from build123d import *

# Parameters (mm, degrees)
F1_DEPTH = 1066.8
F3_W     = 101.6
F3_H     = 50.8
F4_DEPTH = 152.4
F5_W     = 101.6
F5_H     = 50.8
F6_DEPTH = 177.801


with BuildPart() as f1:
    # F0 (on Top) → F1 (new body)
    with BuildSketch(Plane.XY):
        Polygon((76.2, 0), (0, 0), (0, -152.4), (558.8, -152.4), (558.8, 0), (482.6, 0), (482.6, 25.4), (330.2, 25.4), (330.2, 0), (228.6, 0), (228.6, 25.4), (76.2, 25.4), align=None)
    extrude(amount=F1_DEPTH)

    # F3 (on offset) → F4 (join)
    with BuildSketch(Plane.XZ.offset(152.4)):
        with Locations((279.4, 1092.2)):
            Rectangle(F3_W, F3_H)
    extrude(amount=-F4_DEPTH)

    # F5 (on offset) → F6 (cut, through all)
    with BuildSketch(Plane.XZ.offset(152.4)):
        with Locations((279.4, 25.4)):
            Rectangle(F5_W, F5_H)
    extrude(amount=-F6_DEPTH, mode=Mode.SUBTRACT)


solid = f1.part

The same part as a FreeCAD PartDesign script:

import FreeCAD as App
import Part
import Sketcher
Q = App.Units.Quantity

doc = App.newDocument("Part")
body = doc.addObject("PartDesign::Body", "Body")

# Sketch on XY plane
sketch1 = body.newObject("Sketcher::SketchObject", "Sketch")
sketch1.AttachmentSupport = (doc.getObject("XY_Plane"), [""])
sketch1.MapMode = "FlatFace"
sketch1.addGeometry(Part.LineSegment(App.Vector(76, 0, 0), App.Vector(0, 0, 0)), False)
sketch1.addGeometry(Part.LineSegment(App.Vector(0, 0, 0), App.Vector(0, -152, 0)), False)
sketch1.addGeometry(Part.LineSegment(App.Vector(0, -152, 0), App.Vector(559, -152, 0)), False)
sketch1.addGeometry(Part.LineSegment(App.Vector(559, -152, 0), App.Vector(559, 0, 0)), False)
sketch1.addGeometry(Part.LineSegment(App.Vector(559, 0, 0), App.Vector(483, 0, 0)), False)
sketch1.addGeometry(Part.LineSegment(App.Vector(483, 0, 0), App.Vector(483, 25, 0)), False)
sketch1.addGeometry(Part.LineSegment(App.Vector(483, 25, 0), App.Vector(330, 25, 0)), False)
sketch1.addGeometry(Part.LineSegment(App.Vector(330, 25, 0), App.Vector(330, 0, 0)), False)
sketch1.addGeometry(Part.LineSegment(App.Vector(330, 0, 0), App.Vector(229, 0, 0)), False)
sketch1.addGeometry(Part.LineSegment(App.Vector(229, 0, 0), App.Vector(229, 25, 0)), False)
sketch1.addGeometry(Part.LineSegment(App.Vector(229, 25, 0), App.Vector(76, 25, 0)), False)
sketch1.addGeometry(Part.LineSegment(App.Vector(76, 25, 0), App.Vector(76, 0, 0)), False)
sketch1.addConstraint(Sketcher.Constraint("Coincident", 0, 2, 1, 1))
sketch1.addConstraint(Sketcher.Constraint("Coincident", 1, 2, 2, 1))
sketch1.addConstraint(Sketcher.Constraint("Coincident", 2, 2, 3, 1))
sketch1.addConstraint(Sketcher.Constraint("Coincident", 3, 2, 4, 1))
sketch1.addConstraint(Sketcher.Constraint("Coincident", 4, 2, 5, 1))
sketch1.addConstraint(Sketcher.Constraint("Coincident", 5, 2, 6, 1))
sketch1.addConstraint(Sketcher.Constraint("Coincident", 6, 2, 7, 1))
sketch1.addConstraint(Sketcher.Constraint("Coincident", 7, 2, 8, 1))
sketch1.addConstraint(Sketcher.Constraint("Coincident", 8, 2, 9, 1))
sketch1.addConstraint(Sketcher.Constraint("Coincident", 9, 2, 10, 1))
sketch1.addConstraint(Sketcher.Constraint("Coincident", 10, 2, 11, 1))
sketch1.addConstraint(Sketcher.Constraint("Coincident", 11, 2, 0, 1))
sketch1.addConstraint(Sketcher.Constraint("Horizontal", 0))
sketch1.addConstraint(Sketcher.Constraint("Vertical", 1))
sketch1.addConstraint(Sketcher.Constraint("Horizontal", 2))
sketch1.addConstraint(Sketcher.Constraint("Vertical", 3))
sketch1.addConstraint(Sketcher.Constraint("Horizontal", 4))
sketch1.addConstraint(Sketcher.Constraint("Vertical", 5))
sketch1.addConstraint(Sketcher.Constraint("Horizontal", 6))
sketch1.addConstraint(Sketcher.Constraint("Vertical", 7))
sketch1.addConstraint(Sketcher.Constraint("Horizontal", 8))
sketch1.addConstraint(Sketcher.Constraint("Vertical", 9))
sketch1.addConstraint(Sketcher.Constraint("Horizontal", 10))
sketch1.addConstraint(Sketcher.Constraint("Vertical", 11))
sketch1.addConstraint(Sketcher.Constraint("Coincident", 0, 2, -1, 1))
sketch1.addConstraint(Sketcher.Constraint("PointOnObject", 3, 2, -1))
sketch1.addConstraint(Sketcher.Constraint("PointOnObject", 7, 2, -1))
sketch1.addConstraint(Sketcher.Constraint("Horizontal", 6, 2, 9, 2))
sketch1.addConstraint(Sketcher.Constraint("Equal", 0, 4))
sketch1.addConstraint(Sketcher.Constraint("Equal", 6, 10))
sketch1.addConstraint(Sketcher.Constraint("Equal", 10, 1))
sketch1.addConstraint(Sketcher.Constraint("DistanceX", 0, 2, 0, 1, Q("3 in")))
sketch1.addConstraint(Sketcher.Constraint("DistanceX", 2, 1, 2, 2, Q("22 in")))
sketch1.addConstraint(Sketcher.Constraint("DistanceX", 6, 2, 6, 1, Q("6 in")))
sketch1.addConstraint(Sketcher.Constraint("DistanceY", 5, 1, 5, 2, Q("1 in")))
pad1 = body.newObject("PartDesign::Pad", "Pad")
pad1.Profile = sketch1
pad1.Length = Q("42 in")

# Sketch on XZ plane
sketch2 = body.newObject("Sketcher::SketchObject", "Sketch001")
sketch2.AttachmentSupport = (doc.getObject("XZ_Plane"), [""])
sketch2.MapMode = "FlatFace"
sketch2.AttachmentOffset = App.Placement(App.Vector(0, 0, 6 * 25.4), App.Rotation())
sketch2.addGeometry(Part.LineSegment(App.Vector(229, 1118, 0), App.Vector(229, 1067, 0)), False)
sketch2.addGeometry(Part.LineSegment(App.Vector(229, 1067, 0), App.Vector(330, 1067, 0)), False)
sketch2.addGeometry(Part.LineSegment(App.Vector(330, 1067, 0), App.Vector(330, 1118, 0)), False)
sketch2.addGeometry(Part.LineSegment(App.Vector(330, 1118, 0), App.Vector(229, 1118, 0)), False)
sketch2.addConstraint(Sketcher.Constraint("Coincident", 0, 2, 1, 1))
sketch2.addConstraint(Sketcher.Constraint("Coincident", 1, 2, 2, 1))
sketch2.addConstraint(Sketcher.Constraint("Coincident", 2, 2, 3, 1))
sketch2.addConstraint(Sketcher.Constraint("Coincident", 3, 2, 0, 1))
sketch2.addConstraint(Sketcher.Constraint("Vertical", 0))
sketch2.addConstraint(Sketcher.Constraint("Horizontal", 1))
sketch2.addConstraint(Sketcher.Constraint("Vertical", 2))
sketch2.addConstraint(Sketcher.Constraint("Horizontal", 3))
sketch2.addConstraint(Sketcher.Constraint("DistanceX", 1, 1, 1, 2, Q("4 in")))
sketch2.addConstraint(Sketcher.Constraint("DistanceY", 0, 2, 0, 1, Q("2 in")))
sketch2.addConstraint(Sketcher.Constraint("DistanceX", -1, 1, 0, 2, Q("9 in")))
sketch2.addConstraint(Sketcher.Constraint("DistanceY", -1, 1, 0, 2, Q("42 in")))
pad2 = body.newObject("PartDesign::Pad", "Pad001")
pad2.Profile = sketch2
pad2.Length = Q("6 in")
pad2.Reversed = True

# Sketch on XZ plane
sketch3 = body.newObject("Sketcher::SketchObject", "Sketch002")
sketch3.AttachmentSupport = (doc.getObject("XZ_Plane"), [""])
sketch3.MapMode = "FlatFace"
sketch3.AttachmentOffset = App.Placement(App.Vector(0, 0, 6 * 25.4), App.Rotation())
sketch3.addGeometry(Part.LineSegment(App.Vector(229, 51, 0), App.Vector(229, 0, 0)), False)
sketch3.addGeometry(Part.LineSegment(App.Vector(229, 0, 0), App.Vector(330, 0, 0)), False)
sketch3.addGeometry(Part.LineSegment(App.Vector(330, 0, 0), App.Vector(330, 51, 0)), False)
sketch3.addGeometry(Part.LineSegment(App.Vector(330, 51, 0), App.Vector(229, 51, 0)), False)
sketch3.addConstraint(Sketcher.Constraint("Coincident", 0, 2, 1, 1))
sketch3.addConstraint(Sketcher.Constraint("Coincident", 1, 2, 2, 1))
sketch3.addConstraint(Sketcher.Constraint("Coincident", 2, 2, 3, 1))
sketch3.addConstraint(Sketcher.Constraint("Coincident", 3, 2, 0, 1))
sketch3.addConstraint(Sketcher.Constraint("Vertical", 0))
sketch3.addConstraint(Sketcher.Constraint("Horizontal", 1))
sketch3.addConstraint(Sketcher.Constraint("Vertical", 2))
sketch3.addConstraint(Sketcher.Constraint("Horizontal", 3))
sketch3.addConstraint(Sketcher.Constraint("PointOnObject", 0, 2, -1))
sketch3.addConstraint(Sketcher.Constraint("DistanceX", 1, 1, 1, 2, Q("4 in")))
sketch3.addConstraint(Sketcher.Constraint("DistanceY", 0, 2, 0, 1, Q("2 in")))
sketch3.addConstraint(Sketcher.Constraint("DistanceX", -1, 1, 0, 2, Q("9 in")))
pocket1 = body.newObject("PartDesign::Pocket", "Pocket")
pocket1.Profile = sketch3
pocket1.Type = "ThroughAll"

doc.recompute()
